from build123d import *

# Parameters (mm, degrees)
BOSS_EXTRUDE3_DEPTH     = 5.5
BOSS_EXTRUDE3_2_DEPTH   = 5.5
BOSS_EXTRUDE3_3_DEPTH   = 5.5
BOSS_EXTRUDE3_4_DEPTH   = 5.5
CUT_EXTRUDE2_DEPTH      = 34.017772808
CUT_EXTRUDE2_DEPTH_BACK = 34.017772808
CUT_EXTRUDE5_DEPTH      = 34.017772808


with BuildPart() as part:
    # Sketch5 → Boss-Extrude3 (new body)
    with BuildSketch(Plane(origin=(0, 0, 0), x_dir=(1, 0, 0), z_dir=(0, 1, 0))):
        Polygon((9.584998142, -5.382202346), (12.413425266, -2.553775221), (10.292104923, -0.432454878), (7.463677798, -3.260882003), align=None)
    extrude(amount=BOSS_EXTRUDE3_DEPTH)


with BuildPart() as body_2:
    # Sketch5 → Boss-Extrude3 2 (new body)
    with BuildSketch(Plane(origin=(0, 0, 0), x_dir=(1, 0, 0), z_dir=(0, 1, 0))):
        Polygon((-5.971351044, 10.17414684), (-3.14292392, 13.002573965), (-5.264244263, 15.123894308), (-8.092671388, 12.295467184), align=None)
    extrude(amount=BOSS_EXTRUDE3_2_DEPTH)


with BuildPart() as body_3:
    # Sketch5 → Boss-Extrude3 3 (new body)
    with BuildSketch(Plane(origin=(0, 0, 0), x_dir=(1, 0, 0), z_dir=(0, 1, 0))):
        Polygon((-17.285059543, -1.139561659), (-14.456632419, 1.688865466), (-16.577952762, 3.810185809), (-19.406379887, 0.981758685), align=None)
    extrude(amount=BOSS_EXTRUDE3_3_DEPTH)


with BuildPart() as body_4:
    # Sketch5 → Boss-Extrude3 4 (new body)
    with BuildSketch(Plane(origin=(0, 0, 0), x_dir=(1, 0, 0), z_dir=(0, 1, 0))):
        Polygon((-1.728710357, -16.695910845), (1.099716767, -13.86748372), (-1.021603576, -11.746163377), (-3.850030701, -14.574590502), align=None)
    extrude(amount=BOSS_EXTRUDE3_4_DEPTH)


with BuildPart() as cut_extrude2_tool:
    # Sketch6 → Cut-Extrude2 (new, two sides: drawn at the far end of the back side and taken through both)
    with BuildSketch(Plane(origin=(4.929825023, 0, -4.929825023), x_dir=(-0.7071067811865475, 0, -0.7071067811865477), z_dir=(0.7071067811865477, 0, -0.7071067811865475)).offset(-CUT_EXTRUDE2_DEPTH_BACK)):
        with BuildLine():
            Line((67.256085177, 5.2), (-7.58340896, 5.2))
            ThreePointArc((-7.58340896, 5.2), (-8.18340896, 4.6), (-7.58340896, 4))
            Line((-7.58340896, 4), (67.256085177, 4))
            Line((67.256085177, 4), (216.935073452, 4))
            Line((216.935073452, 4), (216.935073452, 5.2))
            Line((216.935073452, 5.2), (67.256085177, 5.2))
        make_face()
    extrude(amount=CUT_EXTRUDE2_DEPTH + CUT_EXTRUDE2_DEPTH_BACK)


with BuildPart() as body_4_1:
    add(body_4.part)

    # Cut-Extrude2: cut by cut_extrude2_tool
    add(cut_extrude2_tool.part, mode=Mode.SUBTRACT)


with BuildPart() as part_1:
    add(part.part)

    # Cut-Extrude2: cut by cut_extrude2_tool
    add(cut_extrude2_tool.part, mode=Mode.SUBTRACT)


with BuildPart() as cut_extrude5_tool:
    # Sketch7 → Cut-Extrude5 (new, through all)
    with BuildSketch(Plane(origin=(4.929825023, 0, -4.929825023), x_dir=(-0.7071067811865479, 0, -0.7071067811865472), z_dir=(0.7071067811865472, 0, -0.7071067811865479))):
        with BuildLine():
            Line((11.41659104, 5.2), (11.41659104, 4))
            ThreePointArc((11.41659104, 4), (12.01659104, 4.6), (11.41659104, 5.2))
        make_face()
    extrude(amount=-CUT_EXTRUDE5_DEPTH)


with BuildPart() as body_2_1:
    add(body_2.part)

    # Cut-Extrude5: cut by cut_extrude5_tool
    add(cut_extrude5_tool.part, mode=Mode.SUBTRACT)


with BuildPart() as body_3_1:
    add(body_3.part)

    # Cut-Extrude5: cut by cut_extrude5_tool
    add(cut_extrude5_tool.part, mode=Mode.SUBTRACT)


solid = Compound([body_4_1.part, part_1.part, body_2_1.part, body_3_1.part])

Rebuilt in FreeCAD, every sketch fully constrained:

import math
import FreeCAD as App
import Part
import Sketcher
from FreeCAD import Vector
Q = App.Units.Quantity


def add_polygon(sketch, points):
    """Adds a closed chain of lines whose ends are joined by coincident constraints."""
    first, n = sketch.GeometryCount, len(points)
    for a, b in zip(points, points[1:] + points[:1]):
        sketch.addGeometry(Part.LineSegment(App.Vector(*a, 0), App.Vector(*b, 0)), False)
    for i in range(n):
        sketch.addConstraint(Sketcher.Constraint("Coincident", first + i, 2, first + (i + 1) % n, 1))

doc = App.newDocument("Part")
body = doc.addObject("PartDesign::Body", "Body")

# Sketch on XZ plane
sketch1 = body.newObject("Sketcher::SketchObject", "Sketch")
sketch1.AttachmentSupport = (doc.getObject("XZ_Plane"), [""])
sketch1.MapMode = "FlatFace"
add_polygon(sketch1, [(9.6, 5.4), (12.4, 2.6), (10.3, 0.4), (7.5, 3.3)])  # lines 0-3
sketch1.addConstraint(Sketcher.Constraint("Perpendicular", 0, 1))
sketch1.addConstraint(Sketcher.Constraint("Perpendicular", 1, 2))
sketch1.addConstraint(Sketcher.Constraint("Perpendicular", 2, 3))
sketch1.addConstraint(Sketcher.Constraint("Angle", 0, Q("-45 deg")))
sketch1.addConstraint(Sketcher.Constraint("Distance", 0, 4.0))
sketch1.addConstraint(Sketcher.Constraint("Distance", 1, 3.0))
sketch1.addConstraint(Sketcher.Constraint("DistanceX", -1, 1, 3, 2, 9.584998))
sketch1.addConstraint(Sketcher.Constraint("DistanceY", -1, 1, 0, 2, 2.553775))
pad1 = body.newObject("PartDesign::Pad", "Pad")
pad1.Profile = sketch1
pad1.Length = 5.5
pad1.Reversed = True
body2 = doc.addObject("PartDesign::Body", "Body001")

# Sketch on XZ plane
sketch2 = body2.newObject("Sketcher::SketchObject", "Sketch001")
sketch2.AttachmentSupport = (doc.getObject("XZ_Plane001"), [""])
sketch2.MapMode = "FlatFace"
add_polygon(sketch2, [(-6, -10.2), (-3.1, -13), (-5.3, -15.1), (-8.1, -12.3)])  # lines 0-3
sketch2.addConstraint(Sketcher.Constraint("Perpendicular", 0, 1))
sketch2.addConstraint(Sketcher.Constraint("Perpendicular", 1, 2))
sketch2.addConstraint(Sketcher.Constraint("Perpendicular", 2, 3))
sketch2.addConstraint(Sketcher.Constraint("Angle", 0, Q("-45 deg")))
sketch2.addConstraint(Sketcher.Constraint("Distance", 0, 4.0))
sketch2.addConstraint(Sketcher.Constraint("Distance", 1, 3.0))
sketch2.addConstraint(Sketcher.Constraint("DistanceX", 2, 2, -1, 1, 8.092671))
sketch2.addConstraint(Sketcher.Constraint("DistanceY", 0, 2, -1, 1, 13.002574))
pad2 = body2.newObject("PartDesign::Pad", "Pad001")
pad2.Profile = sketch2
pad2.Length = 5.5
pad2.Reversed = True
body3 = doc.addObject("PartDesign::Body", "Body002")

# Sketch on XZ plane
sketch3 = body3.newObject("Sketcher::SketchObject", "Sketch002")
sketch3.AttachmentSupport = (doc.getObject("XZ_Plane002"), [""])
sketch3.MapMode = "FlatFace"
add_polygon(sketch3, [(-17.3, 1.1), (-14.5, -1.7), (-16.6, -3.8), (-19.4, -1)])  # lines 0-3
sketch3.addConstraint(Sketcher.Constraint("Perpendicular", 0, 1))
sketch3.addConstraint(Sketcher.Constraint("Perpendicular", 1, 2))
sketch3.addConstraint(Sketcher.Constraint("Perpendicular", 2, 3))
sketch3.addConstraint(Sketcher.Constraint("Angle", 0, Q("-45 deg")))
sketch3.addConstraint(Sketcher.Constraint("Distance", 0, 4.0))
sketch3.addConstraint(Sketcher.Constraint("Distance", 1, 3.0))
sketch3.addConstraint(Sketcher.Constraint("DistanceX", 2, 2, -1, 1, 19.40638))
sketch3.addConstraint(Sketcher.Constraint("DistanceY", 2, 2, -1, 1, 0.981759))
pad3 = body3.newObject("PartDesign::Pad", "Pad002")
pad3.Profile = sketch3
pad3.Length = 5.5
pad3.Reversed = True
body4 = doc.addObject("PartDesign::Body", "Body003")

# Sketch on XZ plane
sketch4 = body4.newObject("Sketcher::SketchObject", "Sketch003")
sketch4.AttachmentSupport = (doc.getObject("XZ_Plane003"), [""])
sketch4.MapMode = "FlatFace"
add_polygon(sketch4, [(-1.7, 16.7), (1.1, 13.9), (-1, 11.7), (-3.9, 14.6)])  # lines 0-3
sketch4.addConstraint(Sketcher.Constraint("Perpendicular", 0, 1))
sketch4.addConstraint(Sketcher.Constraint("Perpendicular", 1, 2))
sketch4.addConstraint(Sketcher.Constraint("Perpendicular", 2, 3))
sketch4.addConstraint(Sketcher.Constraint("Angle", 0, Q("-45 deg")))
sketch4.addConstraint(Sketcher.Constraint("Distance", 0, 4.0))
sketch4.addConstraint(Sketcher.Constraint("Distance", 1, 3.0))
sketch4.addConstraint(Sketcher.Constraint("DistanceX", 2, 2, -1, 1, 3.850031))
sketch4.addConstraint(Sketcher.Constraint("DistanceY", -1, 1, 2, 2, 14.574591))
pad4 = body4.newObject("PartDesign::Pad", "Pad003")
pad4.Profile = sketch4
pad4.Length = 5.5
pad4.Reversed = True
body5 = doc.addObject("PartDesign::Body", "Body004")

# Sketch on an angled plane
sketch5 = body5.newObject("Sketcher::SketchObject", "Sketch004")
sketch5.Placement = App.Placement(Vector(4.929825, 0, -4.929825), App.Rotation(Vector(-0.707106781, 0, -0.707106781), Vector(0, 0.999999999, 0), Vector(0.707106781, 0, -0.707106781), "ZXY"))
sketch5.addGeometry(Part.ArcOfCircle(Part.Circle(Vector(-7.6, 4.6, 0), Vector(0, 0, 1), 0.6), math.radians(90), math.radians(270)), False)
sketch5.addGeometry(Part.LineSegment(Vector(-7.6, 4, 0), Vector(216.9, 4, 0)), False)
sketch5.addGeometry(Part.LineSegment(Vector(216.9, 4, 0), Vector(216.9, 5.2, 0)), False)
sketch5.addGeometry(Part.LineSegment(Vector(216.9, 5.2, 0), Vector(-7.6, 5.2, 0)), False)
sketch5.addConstraint(Sketcher.Constraint("Tangent", 0, 2, 1, 1))
sketch5.addConstraint(Sketcher.Constraint("Coincident", 1, 2, 2, 1))
sketch5.addConstraint(Sketcher.Constraint("Coincident", 2, 2, 3, 1))
sketch5.addConstraint(Sketcher.Constraint("Tangent", 3, 2, 0, 1))
sketch5.addConstraint(Sketcher.Constraint("Horizontal", 1))
sketch5.addConstraint(Sketcher.Constraint("Vertical", 2))
sketch5.addConstraint(Sketcher.Constraint("Horizontal", 3))
sketch5.addConstraint(Sketcher.Constraint("Radius", 0, 0.6))
sketch5.addConstraint(Sketcher.Constraint("DistanceY", -1, 1, 0, 2, 4.0))
sketch5.addConstraint(Sketcher.Constraint("DistanceX", 1, 1, 1, 2, 224.518482))
sketch5.addConstraint(Sketcher.Constraint("DistanceX", 0, 3, -1, 1, 7.583409))
pad5 = body5.newObject("PartDesign::Pad", "Pad004")
pad5.Profile = sketch5
pad5.Type = "TwoLengths"
pad5.Length = 34.017773
pad5.Length2 = 34.017773
doc.recompute()

body6 = doc.addObject("PartDesign::Body", "Body005")
body6.BaseFeature = body5
boolean = body4.newObject("PartDesign::Boolean", "Boolean")
boolean.Type = "Cut"
boolean.addObjects([body6])
doc.recompute()

boolean2 = body.newObject("PartDesign::Boolean", "Boolean001")
boolean2.Type = "Cut"
boolean2.addObjects([body5])
body7 = doc.addObject("PartDesign::Body", "Body006")

# Sketch on an angled plane
sketch6 = body7.newObject("Sketcher::SketchObject", "Sketch005")
sketch6.Placement = App.Placement(Vector(4.929825, 0, -4.929825), App.Rotation(Vector(-0.707106781, 0, -0.707106781), Vector(0, 0.999999999, 0), Vector(0.707106781, 0, -0.707106781), "ZXY"))
sketch6.addGeometry(Part.LineSegment(Vector(11.4, 5.2, 0), Vector(11.4, 4, 0)), False)
sketch6.addGeometry(Part.ArcOfCircle(Part.Circle(Vector(11.4, 4.6, 0), Vector(0, 0, 1), 0.6), math.radians(-90), math.radians(90)), False)
sketch6.addConstraint(Sketcher.Constraint("Coincident", 0, 1, 1, 2))
sketch6.addConstraint(Sketcher.Constraint("Coincident", 1, 1, 0, 2))
sketch6.addConstraint(Sketcher.Constraint("Vertical", 0))
sketch6.addConstraint(Sketcher.Constraint("Vertical", 1, 3, 0, 1))
sketch6.addConstraint(Sketcher.Constraint("Radius", 1, 0.6))
sketch6.addConstraint(Sketcher.Constraint("DistanceY", -1, 1, 1, 1, 4.0))
sketch6.addConstraint(Sketcher.Constraint("DistanceX", -1, 1, 1, 3, 11.416591))
pad6 = body7.newObject("PartDesign::Pad", "Pad005")
pad6.Profile = sketch6
pad6.Length = 34.017773
pad6.Reversed = True
doc.recompute()

body8 = doc.addObject("PartDesign::Body", "Body007")
body8.BaseFeature = body7
boolean3 = body2.newObject("PartDesign::Boolean", "Boolean002")
boolean3.Type = "Cut"
boolean3.addObjects([body8])
doc.recompute()

boolean4 = body3.newObject("PartDesign::Boolean", "Boolean003")
boolean4.Type = "Cut"
boolean4.addObjects([body7])

doc.recompute()
